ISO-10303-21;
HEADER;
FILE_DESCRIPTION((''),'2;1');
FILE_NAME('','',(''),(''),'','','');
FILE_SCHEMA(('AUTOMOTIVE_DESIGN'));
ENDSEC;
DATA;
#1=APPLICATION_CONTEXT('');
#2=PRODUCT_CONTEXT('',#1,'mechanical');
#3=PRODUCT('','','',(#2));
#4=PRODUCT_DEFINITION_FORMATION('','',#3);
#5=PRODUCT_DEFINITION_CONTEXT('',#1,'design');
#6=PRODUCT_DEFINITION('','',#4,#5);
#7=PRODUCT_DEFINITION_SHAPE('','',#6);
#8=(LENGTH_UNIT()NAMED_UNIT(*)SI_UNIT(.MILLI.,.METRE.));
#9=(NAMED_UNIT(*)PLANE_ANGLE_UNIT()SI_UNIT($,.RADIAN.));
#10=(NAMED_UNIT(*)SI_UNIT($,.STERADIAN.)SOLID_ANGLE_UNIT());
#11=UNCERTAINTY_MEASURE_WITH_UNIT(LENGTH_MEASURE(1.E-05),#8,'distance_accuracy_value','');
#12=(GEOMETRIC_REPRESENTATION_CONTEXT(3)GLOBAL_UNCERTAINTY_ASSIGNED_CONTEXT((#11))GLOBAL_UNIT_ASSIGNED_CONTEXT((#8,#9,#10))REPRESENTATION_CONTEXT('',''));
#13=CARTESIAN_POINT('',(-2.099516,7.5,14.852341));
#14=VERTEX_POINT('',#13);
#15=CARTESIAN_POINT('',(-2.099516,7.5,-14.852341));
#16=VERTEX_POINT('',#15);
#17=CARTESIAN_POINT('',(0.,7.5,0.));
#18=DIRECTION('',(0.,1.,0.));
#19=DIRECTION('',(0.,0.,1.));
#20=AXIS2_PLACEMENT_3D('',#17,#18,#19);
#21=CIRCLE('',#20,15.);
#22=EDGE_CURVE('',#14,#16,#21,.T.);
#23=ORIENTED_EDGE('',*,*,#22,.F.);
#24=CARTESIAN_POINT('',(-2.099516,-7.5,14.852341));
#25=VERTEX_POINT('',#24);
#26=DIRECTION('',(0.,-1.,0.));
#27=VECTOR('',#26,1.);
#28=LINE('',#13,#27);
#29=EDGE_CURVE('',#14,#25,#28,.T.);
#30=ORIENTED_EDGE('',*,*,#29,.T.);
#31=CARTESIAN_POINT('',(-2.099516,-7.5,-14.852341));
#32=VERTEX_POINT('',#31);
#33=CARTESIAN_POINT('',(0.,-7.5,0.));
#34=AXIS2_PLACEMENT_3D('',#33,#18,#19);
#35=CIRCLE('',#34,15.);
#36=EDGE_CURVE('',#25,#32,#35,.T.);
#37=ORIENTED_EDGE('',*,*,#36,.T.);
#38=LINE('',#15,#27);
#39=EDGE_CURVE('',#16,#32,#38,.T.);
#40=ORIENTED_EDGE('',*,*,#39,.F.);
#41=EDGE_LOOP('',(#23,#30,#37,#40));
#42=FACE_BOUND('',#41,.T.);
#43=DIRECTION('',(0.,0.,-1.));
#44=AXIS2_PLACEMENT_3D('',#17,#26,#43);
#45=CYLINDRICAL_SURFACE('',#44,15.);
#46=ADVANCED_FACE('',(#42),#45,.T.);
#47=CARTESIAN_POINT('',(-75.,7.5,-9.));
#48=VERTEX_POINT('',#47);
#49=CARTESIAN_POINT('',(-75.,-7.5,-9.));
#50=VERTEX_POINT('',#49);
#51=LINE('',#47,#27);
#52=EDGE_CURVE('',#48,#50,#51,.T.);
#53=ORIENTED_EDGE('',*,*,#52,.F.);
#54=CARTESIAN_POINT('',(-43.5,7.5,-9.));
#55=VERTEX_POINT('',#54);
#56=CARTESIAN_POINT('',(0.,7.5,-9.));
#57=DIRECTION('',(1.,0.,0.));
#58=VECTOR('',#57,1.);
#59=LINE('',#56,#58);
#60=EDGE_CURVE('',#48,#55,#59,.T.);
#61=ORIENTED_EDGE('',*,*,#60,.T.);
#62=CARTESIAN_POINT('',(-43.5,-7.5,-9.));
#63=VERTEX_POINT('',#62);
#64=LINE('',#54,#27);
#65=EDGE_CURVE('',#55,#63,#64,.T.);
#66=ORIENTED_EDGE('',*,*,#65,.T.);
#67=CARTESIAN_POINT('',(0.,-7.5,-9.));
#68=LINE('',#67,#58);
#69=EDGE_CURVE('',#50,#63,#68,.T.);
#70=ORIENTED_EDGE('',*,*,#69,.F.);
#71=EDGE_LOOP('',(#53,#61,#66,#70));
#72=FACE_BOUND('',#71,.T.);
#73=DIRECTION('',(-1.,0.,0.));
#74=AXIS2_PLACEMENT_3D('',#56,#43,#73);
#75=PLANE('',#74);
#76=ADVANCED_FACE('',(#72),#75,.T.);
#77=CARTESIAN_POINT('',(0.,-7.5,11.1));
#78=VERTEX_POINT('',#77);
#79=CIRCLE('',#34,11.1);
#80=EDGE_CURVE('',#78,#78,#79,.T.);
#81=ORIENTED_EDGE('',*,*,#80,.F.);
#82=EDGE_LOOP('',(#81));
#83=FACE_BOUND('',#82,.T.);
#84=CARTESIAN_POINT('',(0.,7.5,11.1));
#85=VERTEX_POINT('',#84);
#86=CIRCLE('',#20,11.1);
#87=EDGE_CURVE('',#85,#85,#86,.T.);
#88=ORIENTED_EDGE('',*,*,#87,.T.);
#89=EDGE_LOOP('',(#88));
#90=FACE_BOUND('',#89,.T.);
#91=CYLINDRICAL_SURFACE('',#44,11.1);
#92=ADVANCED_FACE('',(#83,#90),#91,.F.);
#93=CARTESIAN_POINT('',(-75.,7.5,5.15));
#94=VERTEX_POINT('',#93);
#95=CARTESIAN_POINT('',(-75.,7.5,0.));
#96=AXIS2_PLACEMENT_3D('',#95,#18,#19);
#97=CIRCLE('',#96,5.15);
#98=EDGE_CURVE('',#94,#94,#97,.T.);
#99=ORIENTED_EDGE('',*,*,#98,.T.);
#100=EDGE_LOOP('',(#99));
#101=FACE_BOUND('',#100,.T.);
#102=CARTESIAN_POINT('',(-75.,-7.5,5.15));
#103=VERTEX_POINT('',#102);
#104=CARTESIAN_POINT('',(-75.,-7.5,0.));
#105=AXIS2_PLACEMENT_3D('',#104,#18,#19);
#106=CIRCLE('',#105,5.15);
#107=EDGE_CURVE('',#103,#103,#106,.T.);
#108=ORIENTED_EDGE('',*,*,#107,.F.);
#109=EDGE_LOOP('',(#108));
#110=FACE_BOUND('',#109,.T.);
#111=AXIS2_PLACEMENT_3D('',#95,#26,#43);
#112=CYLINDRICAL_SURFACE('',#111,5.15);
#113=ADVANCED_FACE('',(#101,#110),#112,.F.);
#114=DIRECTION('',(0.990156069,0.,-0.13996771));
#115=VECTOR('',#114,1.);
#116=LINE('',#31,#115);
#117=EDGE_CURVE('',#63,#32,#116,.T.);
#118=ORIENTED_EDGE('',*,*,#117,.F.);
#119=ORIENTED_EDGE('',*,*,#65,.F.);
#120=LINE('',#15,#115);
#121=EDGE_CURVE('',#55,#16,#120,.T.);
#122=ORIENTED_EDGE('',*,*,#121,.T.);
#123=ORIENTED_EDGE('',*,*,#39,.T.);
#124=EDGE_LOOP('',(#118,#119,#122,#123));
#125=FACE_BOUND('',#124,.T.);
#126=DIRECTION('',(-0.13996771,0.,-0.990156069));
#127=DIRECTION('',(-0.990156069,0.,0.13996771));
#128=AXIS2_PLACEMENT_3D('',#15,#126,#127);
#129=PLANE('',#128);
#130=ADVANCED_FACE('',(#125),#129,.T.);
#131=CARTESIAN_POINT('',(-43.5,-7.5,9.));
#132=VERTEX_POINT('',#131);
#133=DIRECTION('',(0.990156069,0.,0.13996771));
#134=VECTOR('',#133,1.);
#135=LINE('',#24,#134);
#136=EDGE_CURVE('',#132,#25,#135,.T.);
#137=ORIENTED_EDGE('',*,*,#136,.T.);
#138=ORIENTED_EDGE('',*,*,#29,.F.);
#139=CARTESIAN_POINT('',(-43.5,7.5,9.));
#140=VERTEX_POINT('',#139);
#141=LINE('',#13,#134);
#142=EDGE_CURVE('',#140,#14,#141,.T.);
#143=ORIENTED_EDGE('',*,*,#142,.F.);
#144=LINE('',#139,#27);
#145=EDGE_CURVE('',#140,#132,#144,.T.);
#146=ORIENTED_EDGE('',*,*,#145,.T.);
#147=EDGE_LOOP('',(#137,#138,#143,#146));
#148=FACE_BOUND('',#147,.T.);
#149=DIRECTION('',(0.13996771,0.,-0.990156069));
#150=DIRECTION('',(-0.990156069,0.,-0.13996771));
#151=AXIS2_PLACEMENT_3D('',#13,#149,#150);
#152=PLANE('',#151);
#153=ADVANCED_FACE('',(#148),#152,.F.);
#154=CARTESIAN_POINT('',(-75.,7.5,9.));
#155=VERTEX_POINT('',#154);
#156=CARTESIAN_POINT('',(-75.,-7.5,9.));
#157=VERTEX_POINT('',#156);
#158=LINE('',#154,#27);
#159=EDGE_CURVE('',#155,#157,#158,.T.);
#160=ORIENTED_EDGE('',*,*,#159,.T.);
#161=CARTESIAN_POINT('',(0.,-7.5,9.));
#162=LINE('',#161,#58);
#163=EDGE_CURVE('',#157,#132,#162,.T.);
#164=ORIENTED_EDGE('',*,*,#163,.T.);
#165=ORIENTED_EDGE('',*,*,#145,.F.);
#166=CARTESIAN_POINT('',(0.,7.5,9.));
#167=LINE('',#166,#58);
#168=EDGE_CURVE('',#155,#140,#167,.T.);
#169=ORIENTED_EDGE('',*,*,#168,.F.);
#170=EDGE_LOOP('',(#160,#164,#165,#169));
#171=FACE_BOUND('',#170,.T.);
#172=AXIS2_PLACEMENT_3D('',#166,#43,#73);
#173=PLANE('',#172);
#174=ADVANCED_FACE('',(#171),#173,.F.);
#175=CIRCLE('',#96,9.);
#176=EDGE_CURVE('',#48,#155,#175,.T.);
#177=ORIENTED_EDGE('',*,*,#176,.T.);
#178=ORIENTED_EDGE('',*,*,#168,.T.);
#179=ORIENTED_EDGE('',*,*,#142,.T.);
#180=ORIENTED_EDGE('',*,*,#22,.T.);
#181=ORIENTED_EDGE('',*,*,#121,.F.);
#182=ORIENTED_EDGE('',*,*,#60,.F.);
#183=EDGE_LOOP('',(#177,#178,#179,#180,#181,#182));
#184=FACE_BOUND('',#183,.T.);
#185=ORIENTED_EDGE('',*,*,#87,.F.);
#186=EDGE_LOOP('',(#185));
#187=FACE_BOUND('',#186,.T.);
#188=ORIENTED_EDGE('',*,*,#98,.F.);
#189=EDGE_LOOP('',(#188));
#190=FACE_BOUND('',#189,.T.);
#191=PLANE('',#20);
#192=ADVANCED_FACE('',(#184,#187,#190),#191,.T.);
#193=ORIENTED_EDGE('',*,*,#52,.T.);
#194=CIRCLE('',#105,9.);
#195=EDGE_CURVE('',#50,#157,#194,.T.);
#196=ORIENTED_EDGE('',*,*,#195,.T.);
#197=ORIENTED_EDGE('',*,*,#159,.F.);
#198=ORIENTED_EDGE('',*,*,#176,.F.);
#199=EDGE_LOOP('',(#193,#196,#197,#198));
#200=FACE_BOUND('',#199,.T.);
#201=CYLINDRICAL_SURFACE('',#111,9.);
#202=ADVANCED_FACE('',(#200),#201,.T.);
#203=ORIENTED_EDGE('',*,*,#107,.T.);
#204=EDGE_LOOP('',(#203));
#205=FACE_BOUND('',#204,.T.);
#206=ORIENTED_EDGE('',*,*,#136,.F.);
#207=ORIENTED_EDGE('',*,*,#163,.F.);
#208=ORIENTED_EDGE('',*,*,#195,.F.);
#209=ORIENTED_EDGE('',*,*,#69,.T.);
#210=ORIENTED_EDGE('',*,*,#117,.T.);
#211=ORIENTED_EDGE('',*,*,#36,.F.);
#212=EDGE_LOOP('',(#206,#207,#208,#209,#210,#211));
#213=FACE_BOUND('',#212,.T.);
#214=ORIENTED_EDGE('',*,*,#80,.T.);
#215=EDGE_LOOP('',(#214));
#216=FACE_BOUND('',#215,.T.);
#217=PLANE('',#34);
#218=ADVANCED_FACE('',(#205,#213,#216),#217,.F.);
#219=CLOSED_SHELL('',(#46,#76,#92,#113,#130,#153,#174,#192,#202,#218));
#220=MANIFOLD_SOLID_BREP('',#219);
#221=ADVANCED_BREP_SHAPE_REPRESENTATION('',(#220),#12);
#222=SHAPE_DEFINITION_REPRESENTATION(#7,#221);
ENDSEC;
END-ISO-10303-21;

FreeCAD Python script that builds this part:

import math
import FreeCAD as App
import Part
import Sketcher
from FreeCAD import Vector
Q = App.Units.Quantity

doc = App.newDocument("Part")
params = doc.addObject("Spreadsheet::Sheet", "Params")
for row, (alias, value) in enumerate([
    ("sketch1_radius", "9 mm"),
    ("sketch1_radius2", "15 mm"),
    ("sketch1_diameter", "10.3 mm"),
    ("sketch1_diameter2", "22.2 mm"),
    ("sketch1_width", "31.5 mm"),
    ("pad1_length", "15 mm"),
], start=1):
    params.set(f"A{row}", alias)
    params.set(f"B{row}", "=" + value)
    params.setAlias(f"B{row}", alias)

body = doc.addObject("PartDesign::Body", "Body")

sketch1 = body.newObject("Sketcher::SketchObject", "Sketch")
sketch1.AttachmentSupport = (doc.getObject("XZ_Plane"), [""])
sketch1.MapMode = "FlatFace"
sketch1.addGeometry([
    Part.LineSegment(Vector(-44, -9, 0), Vector(-75, -9, 0)),
    Part.ArcOfCircle(Part.Circle(Vector(-75, 0, 0), Vector(0, 0, 1), 9), math.radians(90), math.radians(270)),
    Part.LineSegment(Vector(-75, 9, 0), Vector(-44, 9, 0)),
    Part.LineSegment(Vector(-44, 9, 0), Vector(-2, 15, 0)),
    Part.ArcOfCircle(Part.Circle(Vector(0, 0, 0), Vector(0, 0, 1), 15), math.radians(-98), math.radians(98)),
    Part.LineSegment(Vector(-2, -15, 0), Vector(-44, -9, 0)),
    Part.Circle(Vector(-75, 0, 0), Vector(0, 0, 1), 5),
    Part.Circle(Vector(0, 0, 0), Vector(0, 0, 1), 11),
], False)
sketch1.addConstraint([
    Sketcher.Constraint("Tangent", 0, 2, 1, 2),
    Sketcher.Constraint("Tangent", 1, 1, 2, 1),
    Sketcher.Constraint("Coincident", 2, 2, 3, 1),
    Sketcher.Constraint("Tangent", 3, 2, 4, 2),
    Sketcher.Constraint("Tangent", 4, 1, 5, 1),
    Sketcher.Constraint("Coincident", 5, 2, 0, 1),
    Sketcher.Constraint("Horizontal", 0),
    Sketcher.Constraint("Horizontal", 2),
    Sketcher.Constraint("Coincident", 4, 3, -1, 1),
    Sketcher.Constraint("Coincident", 7, 3, -1, 1),
    Sketcher.Constraint("Coincident", 6, 3, 1, 3),
    Sketcher.Constraint("Symmetric", 2, 2, 5, 2, -1),
    Sketcher.Constraint("Radius", 1, Q("9 mm")),
    Sketcher.Constraint("Radius", 4, Q("15 mm")),
    Sketcher.Constraint("Diameter", 6, Q("10.3 mm")),
    Sketcher.Constraint("Diameter", 7, Q("22.2 mm")),
    Sketcher.Constraint("DistanceX", 0, 2, 0, 1, Q("31.5 mm")),
    Sketcher.Constraint("DistanceX", 1, 3, -1, 1, Q("75 mm")),
])
sketch1.setExpression("Constraints[12]", "Params.sketch1_radius")
sketch1.setExpression("Constraints[13]", "Params.sketch1_radius2")
sketch1.setExpression("Constraints[14]", "Params.sketch1_diameter")
sketch1.setExpression("Constraints[15]", "Params.sketch1_diameter2")
sketch1.setExpression("Constraints[16]", "Params.sketch1_width")
pad1 = body.newObject("PartDesign::Pad", "Pad")
pad1.Profile = sketch1
pad1.setExpression("Length", "Params.pad1_length")
pad1.Midplane = True

doc.recompute()
